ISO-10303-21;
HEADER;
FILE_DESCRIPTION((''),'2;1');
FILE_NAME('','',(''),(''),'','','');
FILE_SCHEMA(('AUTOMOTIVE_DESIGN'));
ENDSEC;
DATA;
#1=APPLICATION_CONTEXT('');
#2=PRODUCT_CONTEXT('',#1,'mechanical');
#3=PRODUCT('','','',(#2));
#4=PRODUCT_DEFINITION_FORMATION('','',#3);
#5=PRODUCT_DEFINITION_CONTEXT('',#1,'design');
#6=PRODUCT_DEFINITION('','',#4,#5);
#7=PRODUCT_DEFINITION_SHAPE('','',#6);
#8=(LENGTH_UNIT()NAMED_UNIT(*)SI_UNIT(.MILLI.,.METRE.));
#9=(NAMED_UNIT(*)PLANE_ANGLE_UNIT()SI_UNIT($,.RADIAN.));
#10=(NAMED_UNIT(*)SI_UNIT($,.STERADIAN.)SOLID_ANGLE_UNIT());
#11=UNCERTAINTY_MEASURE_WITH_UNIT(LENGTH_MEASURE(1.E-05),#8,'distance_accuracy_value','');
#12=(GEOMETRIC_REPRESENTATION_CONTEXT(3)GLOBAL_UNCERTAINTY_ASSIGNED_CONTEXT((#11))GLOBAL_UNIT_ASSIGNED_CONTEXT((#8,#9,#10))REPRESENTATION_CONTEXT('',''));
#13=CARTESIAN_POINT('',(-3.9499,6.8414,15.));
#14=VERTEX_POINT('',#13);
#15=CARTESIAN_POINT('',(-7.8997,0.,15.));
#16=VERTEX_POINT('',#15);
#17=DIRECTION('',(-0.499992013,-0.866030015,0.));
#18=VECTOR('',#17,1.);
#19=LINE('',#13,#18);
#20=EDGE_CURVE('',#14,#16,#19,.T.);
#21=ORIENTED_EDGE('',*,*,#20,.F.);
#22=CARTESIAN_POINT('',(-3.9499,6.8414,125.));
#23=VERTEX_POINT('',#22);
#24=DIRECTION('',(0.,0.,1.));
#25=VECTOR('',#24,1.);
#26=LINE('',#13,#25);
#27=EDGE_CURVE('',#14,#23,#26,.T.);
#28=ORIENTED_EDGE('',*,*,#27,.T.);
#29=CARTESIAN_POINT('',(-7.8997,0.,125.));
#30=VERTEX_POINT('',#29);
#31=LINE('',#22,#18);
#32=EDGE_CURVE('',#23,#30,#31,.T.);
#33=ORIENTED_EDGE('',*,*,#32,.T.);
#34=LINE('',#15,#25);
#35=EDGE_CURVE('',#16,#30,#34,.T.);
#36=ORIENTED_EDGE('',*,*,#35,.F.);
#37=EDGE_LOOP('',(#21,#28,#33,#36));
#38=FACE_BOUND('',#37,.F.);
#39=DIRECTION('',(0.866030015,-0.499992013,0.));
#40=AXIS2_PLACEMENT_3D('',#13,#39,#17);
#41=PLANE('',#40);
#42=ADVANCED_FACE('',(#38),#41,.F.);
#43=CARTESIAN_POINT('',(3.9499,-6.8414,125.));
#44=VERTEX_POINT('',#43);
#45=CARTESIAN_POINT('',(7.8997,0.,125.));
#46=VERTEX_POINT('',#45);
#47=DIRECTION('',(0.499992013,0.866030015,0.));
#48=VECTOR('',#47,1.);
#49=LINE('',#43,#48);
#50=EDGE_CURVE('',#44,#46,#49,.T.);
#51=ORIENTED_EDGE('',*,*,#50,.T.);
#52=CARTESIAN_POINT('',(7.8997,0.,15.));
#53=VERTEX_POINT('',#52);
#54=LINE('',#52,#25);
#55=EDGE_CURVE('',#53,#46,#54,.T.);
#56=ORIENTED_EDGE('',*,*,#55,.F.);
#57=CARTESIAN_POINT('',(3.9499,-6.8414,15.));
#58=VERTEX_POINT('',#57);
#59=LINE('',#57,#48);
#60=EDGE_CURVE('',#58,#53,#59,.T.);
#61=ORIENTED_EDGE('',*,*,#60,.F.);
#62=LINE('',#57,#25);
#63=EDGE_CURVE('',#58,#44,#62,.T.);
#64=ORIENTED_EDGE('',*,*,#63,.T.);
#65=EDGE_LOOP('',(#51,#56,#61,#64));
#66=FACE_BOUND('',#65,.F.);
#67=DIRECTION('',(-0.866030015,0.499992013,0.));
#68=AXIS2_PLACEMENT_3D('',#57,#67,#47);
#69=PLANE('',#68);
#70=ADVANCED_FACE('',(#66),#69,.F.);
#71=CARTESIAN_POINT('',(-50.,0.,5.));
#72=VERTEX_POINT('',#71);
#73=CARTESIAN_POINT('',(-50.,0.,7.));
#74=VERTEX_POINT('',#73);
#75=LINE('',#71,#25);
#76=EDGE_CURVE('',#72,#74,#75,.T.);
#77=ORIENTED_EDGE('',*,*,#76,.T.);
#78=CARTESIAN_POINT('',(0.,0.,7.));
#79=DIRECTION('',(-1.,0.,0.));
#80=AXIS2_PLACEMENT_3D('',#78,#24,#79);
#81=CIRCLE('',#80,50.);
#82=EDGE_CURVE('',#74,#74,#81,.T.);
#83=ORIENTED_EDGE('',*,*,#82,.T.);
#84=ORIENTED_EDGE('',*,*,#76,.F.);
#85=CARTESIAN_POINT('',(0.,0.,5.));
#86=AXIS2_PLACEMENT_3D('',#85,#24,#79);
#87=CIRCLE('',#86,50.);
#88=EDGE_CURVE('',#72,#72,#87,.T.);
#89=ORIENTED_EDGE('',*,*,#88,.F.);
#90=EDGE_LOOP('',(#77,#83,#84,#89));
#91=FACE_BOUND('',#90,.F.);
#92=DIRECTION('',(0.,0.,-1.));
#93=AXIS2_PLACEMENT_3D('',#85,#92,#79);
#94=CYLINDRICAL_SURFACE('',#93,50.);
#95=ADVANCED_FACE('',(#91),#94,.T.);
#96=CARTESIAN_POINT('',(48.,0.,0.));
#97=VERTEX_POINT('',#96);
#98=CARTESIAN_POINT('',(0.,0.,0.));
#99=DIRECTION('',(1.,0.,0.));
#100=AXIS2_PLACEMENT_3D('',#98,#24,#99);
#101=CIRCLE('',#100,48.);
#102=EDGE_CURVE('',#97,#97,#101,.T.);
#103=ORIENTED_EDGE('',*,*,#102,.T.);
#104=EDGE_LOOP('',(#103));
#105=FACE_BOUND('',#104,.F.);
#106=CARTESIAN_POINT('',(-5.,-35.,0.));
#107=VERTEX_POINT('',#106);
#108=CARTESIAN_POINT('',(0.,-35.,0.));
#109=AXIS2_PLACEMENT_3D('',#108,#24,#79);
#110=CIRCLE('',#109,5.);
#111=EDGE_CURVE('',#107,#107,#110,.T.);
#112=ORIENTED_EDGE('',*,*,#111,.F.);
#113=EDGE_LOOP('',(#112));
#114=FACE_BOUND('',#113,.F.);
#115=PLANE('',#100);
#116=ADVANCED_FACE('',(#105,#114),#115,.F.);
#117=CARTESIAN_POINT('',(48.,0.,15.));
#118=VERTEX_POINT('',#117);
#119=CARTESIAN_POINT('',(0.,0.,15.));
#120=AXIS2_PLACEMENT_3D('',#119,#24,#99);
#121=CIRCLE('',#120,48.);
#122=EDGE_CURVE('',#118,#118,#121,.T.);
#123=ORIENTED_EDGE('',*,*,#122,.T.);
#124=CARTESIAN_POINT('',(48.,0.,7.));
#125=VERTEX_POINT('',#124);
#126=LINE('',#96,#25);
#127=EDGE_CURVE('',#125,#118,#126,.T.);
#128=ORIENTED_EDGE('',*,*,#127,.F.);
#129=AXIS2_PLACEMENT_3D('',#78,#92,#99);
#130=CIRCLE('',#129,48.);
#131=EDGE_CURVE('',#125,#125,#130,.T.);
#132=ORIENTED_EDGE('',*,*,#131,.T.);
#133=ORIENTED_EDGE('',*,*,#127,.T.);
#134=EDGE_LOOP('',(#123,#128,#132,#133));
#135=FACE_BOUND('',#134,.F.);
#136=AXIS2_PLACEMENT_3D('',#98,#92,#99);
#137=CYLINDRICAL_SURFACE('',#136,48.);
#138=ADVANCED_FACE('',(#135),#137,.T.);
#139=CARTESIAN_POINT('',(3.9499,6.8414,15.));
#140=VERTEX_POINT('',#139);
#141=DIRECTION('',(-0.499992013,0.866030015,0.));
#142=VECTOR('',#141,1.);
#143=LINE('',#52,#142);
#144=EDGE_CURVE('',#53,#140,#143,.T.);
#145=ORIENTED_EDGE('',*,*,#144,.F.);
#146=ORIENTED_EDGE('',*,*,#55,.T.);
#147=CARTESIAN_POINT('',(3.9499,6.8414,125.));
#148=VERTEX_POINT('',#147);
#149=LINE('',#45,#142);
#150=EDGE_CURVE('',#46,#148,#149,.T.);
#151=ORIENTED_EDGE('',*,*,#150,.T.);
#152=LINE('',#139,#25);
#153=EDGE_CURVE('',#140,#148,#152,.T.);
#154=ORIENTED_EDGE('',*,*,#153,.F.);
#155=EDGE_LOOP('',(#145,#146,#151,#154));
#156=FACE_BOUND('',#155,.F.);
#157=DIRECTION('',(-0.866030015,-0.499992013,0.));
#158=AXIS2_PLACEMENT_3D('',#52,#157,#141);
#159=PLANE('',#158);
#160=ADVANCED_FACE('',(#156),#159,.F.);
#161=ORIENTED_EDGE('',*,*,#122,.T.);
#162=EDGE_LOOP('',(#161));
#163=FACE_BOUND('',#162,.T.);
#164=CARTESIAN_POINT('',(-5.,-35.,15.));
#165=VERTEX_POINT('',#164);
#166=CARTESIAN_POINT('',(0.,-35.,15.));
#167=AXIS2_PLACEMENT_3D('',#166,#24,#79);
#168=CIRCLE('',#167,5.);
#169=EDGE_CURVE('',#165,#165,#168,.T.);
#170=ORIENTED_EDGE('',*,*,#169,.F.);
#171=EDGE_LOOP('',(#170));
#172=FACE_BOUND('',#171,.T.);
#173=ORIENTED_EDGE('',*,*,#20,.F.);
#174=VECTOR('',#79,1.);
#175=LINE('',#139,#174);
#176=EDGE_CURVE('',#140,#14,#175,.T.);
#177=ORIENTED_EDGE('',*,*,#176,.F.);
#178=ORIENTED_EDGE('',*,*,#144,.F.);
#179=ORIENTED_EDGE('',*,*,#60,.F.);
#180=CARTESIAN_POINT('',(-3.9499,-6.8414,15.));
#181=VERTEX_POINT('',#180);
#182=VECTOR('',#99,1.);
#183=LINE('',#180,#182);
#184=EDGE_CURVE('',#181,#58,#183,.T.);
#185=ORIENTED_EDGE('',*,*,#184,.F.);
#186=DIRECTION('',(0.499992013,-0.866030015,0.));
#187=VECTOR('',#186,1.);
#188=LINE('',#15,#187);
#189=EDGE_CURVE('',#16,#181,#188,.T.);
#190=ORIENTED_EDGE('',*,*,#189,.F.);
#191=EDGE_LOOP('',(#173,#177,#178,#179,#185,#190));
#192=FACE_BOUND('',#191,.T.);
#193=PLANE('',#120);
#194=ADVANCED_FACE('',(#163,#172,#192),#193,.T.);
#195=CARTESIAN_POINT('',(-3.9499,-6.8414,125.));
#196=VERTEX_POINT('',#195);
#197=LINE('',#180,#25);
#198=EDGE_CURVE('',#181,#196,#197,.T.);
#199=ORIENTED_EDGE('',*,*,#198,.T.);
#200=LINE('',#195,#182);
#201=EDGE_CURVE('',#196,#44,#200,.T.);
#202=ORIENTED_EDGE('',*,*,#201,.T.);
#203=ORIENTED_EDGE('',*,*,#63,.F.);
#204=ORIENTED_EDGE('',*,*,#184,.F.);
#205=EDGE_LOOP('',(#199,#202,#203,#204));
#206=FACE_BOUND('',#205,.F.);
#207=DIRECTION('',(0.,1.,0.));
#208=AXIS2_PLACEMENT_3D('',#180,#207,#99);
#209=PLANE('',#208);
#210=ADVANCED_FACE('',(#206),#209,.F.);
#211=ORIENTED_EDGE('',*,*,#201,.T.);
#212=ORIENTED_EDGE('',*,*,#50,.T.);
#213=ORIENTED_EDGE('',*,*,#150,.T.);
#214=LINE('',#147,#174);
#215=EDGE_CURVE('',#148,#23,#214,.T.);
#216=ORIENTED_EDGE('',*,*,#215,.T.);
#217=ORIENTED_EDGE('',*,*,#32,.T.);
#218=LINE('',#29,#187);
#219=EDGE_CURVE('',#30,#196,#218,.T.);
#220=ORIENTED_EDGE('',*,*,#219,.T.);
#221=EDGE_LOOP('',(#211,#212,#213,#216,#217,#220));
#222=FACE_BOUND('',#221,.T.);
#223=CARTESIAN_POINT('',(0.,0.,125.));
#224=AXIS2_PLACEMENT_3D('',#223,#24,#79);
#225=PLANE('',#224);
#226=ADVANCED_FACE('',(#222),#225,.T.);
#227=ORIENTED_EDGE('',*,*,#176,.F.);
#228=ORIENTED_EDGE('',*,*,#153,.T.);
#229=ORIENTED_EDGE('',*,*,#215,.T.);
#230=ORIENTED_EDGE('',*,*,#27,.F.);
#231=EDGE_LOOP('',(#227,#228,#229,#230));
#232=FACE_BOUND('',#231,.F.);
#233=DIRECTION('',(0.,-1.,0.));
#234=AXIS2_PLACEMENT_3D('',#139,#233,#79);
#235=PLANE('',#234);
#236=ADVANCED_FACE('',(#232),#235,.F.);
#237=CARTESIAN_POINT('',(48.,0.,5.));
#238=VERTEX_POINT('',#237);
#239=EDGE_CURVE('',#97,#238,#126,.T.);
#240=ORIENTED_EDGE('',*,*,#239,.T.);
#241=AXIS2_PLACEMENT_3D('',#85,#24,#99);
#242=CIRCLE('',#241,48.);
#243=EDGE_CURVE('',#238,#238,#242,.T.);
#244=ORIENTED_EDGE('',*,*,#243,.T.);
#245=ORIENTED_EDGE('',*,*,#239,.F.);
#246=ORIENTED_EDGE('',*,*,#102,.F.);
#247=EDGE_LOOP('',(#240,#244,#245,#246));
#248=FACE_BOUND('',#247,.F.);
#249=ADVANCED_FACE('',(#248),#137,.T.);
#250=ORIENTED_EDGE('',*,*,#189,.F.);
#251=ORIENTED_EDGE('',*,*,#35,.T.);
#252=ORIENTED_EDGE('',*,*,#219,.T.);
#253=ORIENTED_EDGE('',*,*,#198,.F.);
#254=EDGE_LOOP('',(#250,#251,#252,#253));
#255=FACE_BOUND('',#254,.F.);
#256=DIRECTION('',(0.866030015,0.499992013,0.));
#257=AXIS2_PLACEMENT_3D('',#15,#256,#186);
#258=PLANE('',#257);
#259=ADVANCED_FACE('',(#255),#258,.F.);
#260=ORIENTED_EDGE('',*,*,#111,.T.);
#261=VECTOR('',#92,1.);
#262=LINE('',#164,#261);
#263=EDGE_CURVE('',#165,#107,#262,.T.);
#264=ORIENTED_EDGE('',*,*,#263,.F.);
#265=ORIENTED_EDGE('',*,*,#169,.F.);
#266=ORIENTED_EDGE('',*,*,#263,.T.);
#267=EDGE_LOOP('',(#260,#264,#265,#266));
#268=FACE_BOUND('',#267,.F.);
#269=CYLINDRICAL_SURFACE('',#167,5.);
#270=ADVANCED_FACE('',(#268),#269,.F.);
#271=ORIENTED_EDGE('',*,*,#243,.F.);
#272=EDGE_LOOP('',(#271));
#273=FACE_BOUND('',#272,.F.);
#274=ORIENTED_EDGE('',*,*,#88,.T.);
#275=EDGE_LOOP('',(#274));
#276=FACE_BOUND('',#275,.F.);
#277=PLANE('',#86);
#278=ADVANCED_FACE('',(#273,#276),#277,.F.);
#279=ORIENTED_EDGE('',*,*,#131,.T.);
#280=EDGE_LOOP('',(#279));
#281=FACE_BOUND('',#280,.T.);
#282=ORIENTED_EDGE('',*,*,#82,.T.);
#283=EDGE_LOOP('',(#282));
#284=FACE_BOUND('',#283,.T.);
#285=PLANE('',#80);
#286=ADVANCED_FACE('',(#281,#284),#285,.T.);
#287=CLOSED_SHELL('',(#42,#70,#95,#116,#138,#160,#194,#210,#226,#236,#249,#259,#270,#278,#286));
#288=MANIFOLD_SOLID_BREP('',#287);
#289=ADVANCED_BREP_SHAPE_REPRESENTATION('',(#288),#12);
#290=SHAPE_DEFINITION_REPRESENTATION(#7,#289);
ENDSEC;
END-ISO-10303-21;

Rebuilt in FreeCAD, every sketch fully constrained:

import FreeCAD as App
import Part
import Sketcher

V = App.Vector
Q = App.Units.Quantity


def add_polygon(sketch, points):
    """Adds a closed chain of lines whose ends are joined by coincident constraints."""
    first, n = sketch.GeometryCount, len(points)
    for a, b in zip(points, points[1:] + points[:1]):
        sketch.addGeometry(Part.LineSegment(App.Vector(*a, 0), App.Vector(*b, 0)), False)
    for i in range(n):
        sketch.addConstraint(Sketcher.Constraint("Coincident", first + i, 2, first + (i + 1) % n, 1))

doc = App.newDocument("Part")
body = doc.addObject("PartDesign::Body", "Body")

sketch1 = body.newObject("Sketcher::SketchObject", "Sketch")
sketch1.AttachmentSupport = (doc.getObject("XY_Plane"), [""])
sketch1.MapMode = "FlatFace"
sketch1.addGeometry(Part.Circle(V(0, 0, 0), V(0, 0, 1), 48), False)
sketch1.addConstraint([
    Sketcher.Constraint("Coincident", 0, 3, -1, 1),
    Sketcher.Constraint("Diameter", 0, Q("96 mm")),
])
pad1 = body.newObject("PartDesign::Pad", "Pad")
pad1.Profile = sketch1
pad1.Length = 5

sketch2 = body.newObject("Sketcher::SketchObject", "Sketch001")
sketch2.AttachmentSupport = (doc.getObject("XY_Plane"), [""])
sketch2.MapMode = "FlatFace"
sketch2.AttachmentOffset = App.Placement(V(0, 0, 5), App.Rotation())
sketch2.addGeometry(Part.Circle(V(0, 0, 0), V(0, 0, 1), 50), False)
sketch2.addConstraint([
    Sketcher.Constraint("Coincident", 0, 3, -1, 1),
    Sketcher.Constraint("Diameter", 0, Q("100 mm")),
])
pad2 = body.newObject("PartDesign::Pad", "Pad001")
pad2.Profile = sketch2
pad2.Length = 2

sketch3 = body.newObject("Sketcher::SketchObject", "Sketch002")
sketch3.AttachmentSupport = (doc.getObject("XY_Plane"), [""])
sketch3.MapMode = "FlatFace"
sketch3.addGeometry(Part.Circle(V(0, 0, 0), V(0, 0, 1), 48), False)
sketch3.addConstraint([
    Sketcher.Constraint("Coincident", 0, 3, -1, 1),
    Sketcher.Constraint("Diameter", 0, Q("96 mm")),
])
pad3 = body.newObject("PartDesign::Pad", "Pad002")
pad3.Profile = sketch3
pad3.Length = 15

sketch4 = body.newObject("Sketcher::SketchObject", "Sketch003")
sketch4.AttachmentSupport = (doc.getObject("XY_Plane"), [""])
sketch4.MapMode = "FlatFace"
sketch4.AttachmentOffset = App.Placement(V(0, 0, 15), App.Rotation())
add_polygon(sketch4, [(3.9499, 6.8414), (-3.9499, 6.8414), (-7.8997, 0), (-3.9499, -6.8414), (3.9499, -6.8414), (7.8997, 0)])
sketch4.addConstraint([
    Sketcher.Constraint("Horizontal", 0),
    Sketcher.Constraint("Horizontal", 3),
    Sketcher.Constraint("Symmetric", 0, 2, 3, 2, -1, 1),
    Sketcher.Constraint("Symmetric", 1, 2, 4, 2, -1, 1),
    Sketcher.Constraint("PointOnObject", 1, 2, -1),
    Sketcher.Constraint("Parallel", 2, 5),
    Sketcher.Constraint("Vertical", 0, 2, 2, 2),
    Sketcher.Constraint("Angle", 1, Q("-119.9995 deg")),
    Sketcher.Constraint("DistanceX", 0, 2, -1, 1, Q("3.95 mm")),
    Sketcher.Constraint("Distance", 1, Q("7.8997 mm")),
])
pad4 = body.newObject("PartDesign::Pad", "Pad003")
pad4.Profile = sketch4
pad4.Length = 110

sketch5 = body.newObject("Sketcher::SketchObject", "Sketch004")
sketch5.AttachmentSupport = (doc.getObject("XY_Plane"), [""])
sketch5.MapMode = "FlatFace"
sketch5.AttachmentOffset = App.Placement(V(0, 0, 15), App.Rotation())
sketch5.addGeometry(Part.Circle(V(0, -35, 0), V(0, 0, 1), 5), False)
sketch5.addConstraint([
    Sketcher.Constraint("PointOnObject", 0, 3, -2),
    Sketcher.Constraint("Diameter", 0, Q("10 mm")),
    Sketcher.Constraint("DistanceY", 0, 3, -1, 1, Q("35 mm")),
])
pocket1 = body.newObject("PartDesign::Pocket", "Pocket")
pocket1.Profile = sketch5
pocket1.Length = 15

doc.recompute()
